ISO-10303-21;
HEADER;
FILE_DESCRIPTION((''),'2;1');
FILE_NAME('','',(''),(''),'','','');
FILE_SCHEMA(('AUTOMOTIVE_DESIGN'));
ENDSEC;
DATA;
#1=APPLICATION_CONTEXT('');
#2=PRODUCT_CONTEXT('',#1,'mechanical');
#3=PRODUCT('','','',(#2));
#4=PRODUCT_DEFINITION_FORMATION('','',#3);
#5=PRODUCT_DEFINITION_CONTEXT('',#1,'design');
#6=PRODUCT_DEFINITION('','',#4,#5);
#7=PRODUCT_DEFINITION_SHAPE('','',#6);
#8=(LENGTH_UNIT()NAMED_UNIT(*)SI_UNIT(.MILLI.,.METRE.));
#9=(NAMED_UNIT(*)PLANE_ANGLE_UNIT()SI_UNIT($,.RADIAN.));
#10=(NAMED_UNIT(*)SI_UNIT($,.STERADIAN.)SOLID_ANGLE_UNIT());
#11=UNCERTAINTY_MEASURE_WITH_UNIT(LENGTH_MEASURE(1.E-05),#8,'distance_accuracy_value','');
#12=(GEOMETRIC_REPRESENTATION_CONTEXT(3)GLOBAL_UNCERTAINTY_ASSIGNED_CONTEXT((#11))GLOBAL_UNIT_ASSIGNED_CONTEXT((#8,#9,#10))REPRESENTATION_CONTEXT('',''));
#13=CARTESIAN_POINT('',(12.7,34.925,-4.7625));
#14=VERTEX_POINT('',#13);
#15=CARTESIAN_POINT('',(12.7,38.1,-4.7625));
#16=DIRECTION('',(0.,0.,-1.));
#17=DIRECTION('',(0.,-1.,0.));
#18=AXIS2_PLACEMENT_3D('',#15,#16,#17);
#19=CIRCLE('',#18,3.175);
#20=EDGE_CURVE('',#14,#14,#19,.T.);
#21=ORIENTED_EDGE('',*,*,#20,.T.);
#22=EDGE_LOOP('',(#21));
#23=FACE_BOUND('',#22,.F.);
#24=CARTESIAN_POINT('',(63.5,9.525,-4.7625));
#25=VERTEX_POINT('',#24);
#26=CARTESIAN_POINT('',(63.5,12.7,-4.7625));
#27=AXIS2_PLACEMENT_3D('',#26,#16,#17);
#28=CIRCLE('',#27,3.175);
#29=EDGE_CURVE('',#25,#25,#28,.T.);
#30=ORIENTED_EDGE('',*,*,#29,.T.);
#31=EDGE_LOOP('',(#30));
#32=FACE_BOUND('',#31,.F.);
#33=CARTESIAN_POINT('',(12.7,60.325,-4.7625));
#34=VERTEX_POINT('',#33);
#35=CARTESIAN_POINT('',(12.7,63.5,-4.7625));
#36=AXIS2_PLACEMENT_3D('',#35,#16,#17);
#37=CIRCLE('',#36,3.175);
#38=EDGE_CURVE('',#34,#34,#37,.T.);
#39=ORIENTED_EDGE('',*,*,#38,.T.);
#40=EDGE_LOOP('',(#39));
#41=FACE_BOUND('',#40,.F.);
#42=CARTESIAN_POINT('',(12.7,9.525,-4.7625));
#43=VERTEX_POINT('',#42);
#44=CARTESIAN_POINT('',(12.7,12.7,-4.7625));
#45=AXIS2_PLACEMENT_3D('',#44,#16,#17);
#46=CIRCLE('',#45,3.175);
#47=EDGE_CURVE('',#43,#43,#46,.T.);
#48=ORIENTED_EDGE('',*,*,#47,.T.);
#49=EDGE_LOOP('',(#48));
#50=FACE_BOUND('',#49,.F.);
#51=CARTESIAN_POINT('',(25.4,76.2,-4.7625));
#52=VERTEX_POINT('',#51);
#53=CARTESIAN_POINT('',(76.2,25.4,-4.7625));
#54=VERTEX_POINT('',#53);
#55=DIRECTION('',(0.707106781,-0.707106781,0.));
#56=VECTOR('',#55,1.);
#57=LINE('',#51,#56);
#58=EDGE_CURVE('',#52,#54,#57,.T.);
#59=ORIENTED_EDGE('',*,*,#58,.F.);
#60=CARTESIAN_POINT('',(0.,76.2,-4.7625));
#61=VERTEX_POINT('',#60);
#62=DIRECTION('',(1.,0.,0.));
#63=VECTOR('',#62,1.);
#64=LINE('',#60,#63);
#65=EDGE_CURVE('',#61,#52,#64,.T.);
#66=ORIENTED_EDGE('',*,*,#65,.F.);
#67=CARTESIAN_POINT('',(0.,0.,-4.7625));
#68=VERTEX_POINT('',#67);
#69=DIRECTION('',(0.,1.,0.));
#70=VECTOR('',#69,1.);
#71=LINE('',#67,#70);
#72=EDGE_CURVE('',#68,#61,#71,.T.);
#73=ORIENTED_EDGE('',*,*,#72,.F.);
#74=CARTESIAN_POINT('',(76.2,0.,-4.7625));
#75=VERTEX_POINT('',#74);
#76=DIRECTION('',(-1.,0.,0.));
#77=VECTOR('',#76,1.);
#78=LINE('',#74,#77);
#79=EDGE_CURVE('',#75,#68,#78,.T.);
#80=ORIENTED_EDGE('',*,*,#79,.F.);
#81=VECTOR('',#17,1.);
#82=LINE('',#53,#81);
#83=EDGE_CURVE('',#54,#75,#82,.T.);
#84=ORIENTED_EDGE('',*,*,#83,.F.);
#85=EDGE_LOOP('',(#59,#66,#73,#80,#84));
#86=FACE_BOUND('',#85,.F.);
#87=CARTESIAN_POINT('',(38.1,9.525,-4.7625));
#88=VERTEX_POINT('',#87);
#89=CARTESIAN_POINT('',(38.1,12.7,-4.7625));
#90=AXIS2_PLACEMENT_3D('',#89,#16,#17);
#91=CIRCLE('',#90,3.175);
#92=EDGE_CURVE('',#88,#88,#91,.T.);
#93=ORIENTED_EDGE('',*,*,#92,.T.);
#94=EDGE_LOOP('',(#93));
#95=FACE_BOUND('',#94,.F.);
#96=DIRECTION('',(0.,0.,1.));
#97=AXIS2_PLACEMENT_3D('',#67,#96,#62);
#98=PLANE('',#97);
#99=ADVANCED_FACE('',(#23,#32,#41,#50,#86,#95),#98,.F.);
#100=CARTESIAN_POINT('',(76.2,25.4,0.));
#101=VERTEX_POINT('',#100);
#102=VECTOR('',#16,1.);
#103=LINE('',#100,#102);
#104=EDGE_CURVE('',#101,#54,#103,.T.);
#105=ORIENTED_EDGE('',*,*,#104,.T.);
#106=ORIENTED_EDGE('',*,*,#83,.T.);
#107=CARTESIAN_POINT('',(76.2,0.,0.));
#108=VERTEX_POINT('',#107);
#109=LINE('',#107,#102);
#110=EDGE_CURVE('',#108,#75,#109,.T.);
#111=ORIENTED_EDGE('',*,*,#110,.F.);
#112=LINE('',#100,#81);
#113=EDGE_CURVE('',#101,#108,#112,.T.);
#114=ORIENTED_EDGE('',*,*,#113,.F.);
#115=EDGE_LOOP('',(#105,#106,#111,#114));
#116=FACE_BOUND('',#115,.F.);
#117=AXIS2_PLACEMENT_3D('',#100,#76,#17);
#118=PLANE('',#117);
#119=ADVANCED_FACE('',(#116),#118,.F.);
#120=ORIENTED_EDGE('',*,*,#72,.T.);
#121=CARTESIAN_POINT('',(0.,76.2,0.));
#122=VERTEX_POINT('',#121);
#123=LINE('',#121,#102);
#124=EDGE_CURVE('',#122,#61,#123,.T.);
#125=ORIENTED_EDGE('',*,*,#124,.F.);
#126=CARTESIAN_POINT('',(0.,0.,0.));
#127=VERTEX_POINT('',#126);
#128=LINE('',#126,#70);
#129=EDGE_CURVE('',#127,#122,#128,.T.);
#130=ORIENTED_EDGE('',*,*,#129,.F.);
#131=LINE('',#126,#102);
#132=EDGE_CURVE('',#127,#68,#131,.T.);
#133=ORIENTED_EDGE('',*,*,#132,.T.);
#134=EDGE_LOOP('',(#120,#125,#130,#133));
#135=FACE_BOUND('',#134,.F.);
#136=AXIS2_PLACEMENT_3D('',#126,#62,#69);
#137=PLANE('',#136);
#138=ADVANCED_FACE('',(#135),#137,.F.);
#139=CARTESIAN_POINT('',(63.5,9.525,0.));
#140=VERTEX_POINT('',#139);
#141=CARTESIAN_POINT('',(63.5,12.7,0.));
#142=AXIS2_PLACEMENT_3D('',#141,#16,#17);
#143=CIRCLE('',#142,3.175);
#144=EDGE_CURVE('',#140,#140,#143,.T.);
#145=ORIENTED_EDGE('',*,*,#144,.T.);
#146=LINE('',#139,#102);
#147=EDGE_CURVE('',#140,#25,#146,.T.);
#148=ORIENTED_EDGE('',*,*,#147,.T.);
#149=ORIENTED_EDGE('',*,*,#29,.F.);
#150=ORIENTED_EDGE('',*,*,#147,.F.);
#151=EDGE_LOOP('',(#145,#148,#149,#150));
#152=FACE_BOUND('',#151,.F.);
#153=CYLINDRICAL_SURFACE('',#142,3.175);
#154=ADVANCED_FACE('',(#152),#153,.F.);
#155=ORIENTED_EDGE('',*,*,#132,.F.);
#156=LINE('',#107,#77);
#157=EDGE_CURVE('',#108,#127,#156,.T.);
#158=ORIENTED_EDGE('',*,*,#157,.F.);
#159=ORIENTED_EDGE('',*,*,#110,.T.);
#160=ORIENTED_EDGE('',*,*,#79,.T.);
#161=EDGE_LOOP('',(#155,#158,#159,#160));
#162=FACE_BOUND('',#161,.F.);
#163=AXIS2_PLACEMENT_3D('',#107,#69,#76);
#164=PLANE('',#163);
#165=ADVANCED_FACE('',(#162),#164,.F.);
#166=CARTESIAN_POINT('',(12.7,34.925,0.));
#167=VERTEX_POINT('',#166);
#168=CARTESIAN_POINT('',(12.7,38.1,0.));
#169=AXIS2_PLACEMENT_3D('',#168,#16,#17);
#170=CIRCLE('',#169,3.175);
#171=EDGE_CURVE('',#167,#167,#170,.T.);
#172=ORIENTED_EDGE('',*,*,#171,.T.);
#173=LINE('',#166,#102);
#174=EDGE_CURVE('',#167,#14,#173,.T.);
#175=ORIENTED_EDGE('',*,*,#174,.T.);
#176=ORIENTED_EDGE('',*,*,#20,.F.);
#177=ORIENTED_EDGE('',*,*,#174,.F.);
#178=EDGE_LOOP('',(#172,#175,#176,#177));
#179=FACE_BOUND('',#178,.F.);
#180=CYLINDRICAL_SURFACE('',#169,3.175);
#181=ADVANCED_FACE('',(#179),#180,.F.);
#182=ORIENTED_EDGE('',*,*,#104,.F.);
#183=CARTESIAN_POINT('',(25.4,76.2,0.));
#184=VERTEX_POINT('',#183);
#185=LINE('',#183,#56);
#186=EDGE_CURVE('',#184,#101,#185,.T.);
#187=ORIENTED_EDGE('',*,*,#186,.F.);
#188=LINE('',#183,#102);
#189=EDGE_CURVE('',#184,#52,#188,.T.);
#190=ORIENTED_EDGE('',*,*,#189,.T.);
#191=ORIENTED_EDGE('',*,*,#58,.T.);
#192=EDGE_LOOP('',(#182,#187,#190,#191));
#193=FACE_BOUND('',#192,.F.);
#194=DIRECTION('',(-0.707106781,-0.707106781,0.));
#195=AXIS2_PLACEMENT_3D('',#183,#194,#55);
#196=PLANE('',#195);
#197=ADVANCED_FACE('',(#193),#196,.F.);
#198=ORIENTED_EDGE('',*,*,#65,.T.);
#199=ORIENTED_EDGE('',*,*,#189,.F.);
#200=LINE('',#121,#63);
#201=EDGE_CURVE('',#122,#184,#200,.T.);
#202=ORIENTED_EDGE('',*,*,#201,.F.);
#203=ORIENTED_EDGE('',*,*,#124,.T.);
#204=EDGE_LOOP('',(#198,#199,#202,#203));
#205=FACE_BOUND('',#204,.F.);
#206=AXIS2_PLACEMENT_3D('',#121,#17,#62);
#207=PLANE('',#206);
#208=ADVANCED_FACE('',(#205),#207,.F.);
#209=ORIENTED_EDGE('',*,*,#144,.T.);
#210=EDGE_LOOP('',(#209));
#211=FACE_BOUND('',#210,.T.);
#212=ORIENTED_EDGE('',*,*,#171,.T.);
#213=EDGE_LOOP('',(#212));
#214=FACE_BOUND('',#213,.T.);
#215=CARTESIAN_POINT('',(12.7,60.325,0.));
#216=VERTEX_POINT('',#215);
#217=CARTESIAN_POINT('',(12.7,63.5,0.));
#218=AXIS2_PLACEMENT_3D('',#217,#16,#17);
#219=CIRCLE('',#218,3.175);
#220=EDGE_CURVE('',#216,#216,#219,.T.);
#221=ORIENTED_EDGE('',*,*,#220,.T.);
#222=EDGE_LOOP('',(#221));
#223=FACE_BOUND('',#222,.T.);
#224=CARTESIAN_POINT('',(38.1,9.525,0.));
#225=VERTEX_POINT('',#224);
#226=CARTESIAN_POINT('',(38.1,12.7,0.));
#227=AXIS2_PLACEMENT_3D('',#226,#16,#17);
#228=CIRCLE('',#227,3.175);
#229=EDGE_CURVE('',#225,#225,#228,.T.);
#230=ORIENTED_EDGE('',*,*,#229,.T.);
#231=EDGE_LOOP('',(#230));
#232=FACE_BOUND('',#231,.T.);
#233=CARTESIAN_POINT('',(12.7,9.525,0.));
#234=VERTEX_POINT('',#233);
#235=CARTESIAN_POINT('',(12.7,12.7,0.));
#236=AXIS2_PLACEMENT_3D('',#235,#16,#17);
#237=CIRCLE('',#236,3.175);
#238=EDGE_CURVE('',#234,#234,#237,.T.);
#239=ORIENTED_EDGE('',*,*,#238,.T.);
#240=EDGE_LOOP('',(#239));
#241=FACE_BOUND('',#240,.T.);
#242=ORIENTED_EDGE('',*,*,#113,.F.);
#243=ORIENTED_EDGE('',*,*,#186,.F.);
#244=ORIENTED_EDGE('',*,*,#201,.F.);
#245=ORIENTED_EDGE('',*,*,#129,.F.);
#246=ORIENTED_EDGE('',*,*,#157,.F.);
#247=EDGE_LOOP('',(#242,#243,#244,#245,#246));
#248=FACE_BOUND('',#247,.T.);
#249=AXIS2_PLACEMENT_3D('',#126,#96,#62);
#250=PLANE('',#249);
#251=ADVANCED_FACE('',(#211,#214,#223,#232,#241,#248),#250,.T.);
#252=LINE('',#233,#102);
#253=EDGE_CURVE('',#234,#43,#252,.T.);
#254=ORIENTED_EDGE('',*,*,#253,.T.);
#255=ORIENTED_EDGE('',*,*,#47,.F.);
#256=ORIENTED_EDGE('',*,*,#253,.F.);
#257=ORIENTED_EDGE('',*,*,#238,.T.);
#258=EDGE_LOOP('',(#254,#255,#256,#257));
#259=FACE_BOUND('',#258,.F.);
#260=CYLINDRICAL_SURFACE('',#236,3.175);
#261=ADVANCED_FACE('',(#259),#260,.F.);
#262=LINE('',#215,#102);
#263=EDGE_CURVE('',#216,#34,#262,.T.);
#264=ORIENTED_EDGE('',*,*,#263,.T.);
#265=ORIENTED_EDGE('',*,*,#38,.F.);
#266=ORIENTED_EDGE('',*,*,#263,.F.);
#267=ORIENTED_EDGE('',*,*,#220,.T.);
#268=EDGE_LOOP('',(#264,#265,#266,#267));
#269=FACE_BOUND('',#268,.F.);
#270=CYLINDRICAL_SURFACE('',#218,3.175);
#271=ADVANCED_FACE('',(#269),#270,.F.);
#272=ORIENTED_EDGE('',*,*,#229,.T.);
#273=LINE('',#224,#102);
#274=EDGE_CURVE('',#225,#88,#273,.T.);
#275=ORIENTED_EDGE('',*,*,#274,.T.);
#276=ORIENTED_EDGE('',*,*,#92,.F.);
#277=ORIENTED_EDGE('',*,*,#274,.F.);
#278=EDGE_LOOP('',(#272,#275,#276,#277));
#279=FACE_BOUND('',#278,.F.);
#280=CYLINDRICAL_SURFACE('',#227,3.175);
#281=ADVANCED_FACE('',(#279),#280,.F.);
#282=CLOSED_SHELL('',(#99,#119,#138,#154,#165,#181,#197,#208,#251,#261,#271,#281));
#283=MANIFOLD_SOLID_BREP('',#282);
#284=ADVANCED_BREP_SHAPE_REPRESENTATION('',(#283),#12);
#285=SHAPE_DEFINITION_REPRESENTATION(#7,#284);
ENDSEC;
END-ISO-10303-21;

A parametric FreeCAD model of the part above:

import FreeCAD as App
import Part
import Sketcher
from FreeCAD import Vector
Q = App.Units.Quantity


def add_polygon(sketch, points):
    """Adds a closed chain of lines whose ends are joined by coincident constraints."""
    first, n = sketch.GeometryCount, len(points)
    for a, b in zip(points, points[1:] + points[:1]):
        sketch.addGeometry(Part.LineSegment(App.Vector(*a, 0), App.Vector(*b, 0)), False)
    for i in range(n):
        sketch.addConstraint(Sketcher.Constraint("Coincident", first + i, 2, first + (i + 1) % n, 1))

doc = App.newDocument("Part")
body = doc.addObject("PartDesign::Body", "Body")

# Sketch on XY plane
sketch1 = doc.addObject("Sketcher::SketchObject", "Sketch")
body.addObject(sketch1)
sketch1.AttachmentSupport = (doc.XY_Plane, [""])
sketch1.MapMode = "FlatFace"
add_polygon(sketch1, [(0, 0), (76, 0), (76, 25), (25, 76), (0, 76)])  # lines 0-4
sketch1.addConstraint([
    Sketcher.Constraint("Horizontal", 0),
    Sketcher.Constraint("Vertical", 1),
    Sketcher.Constraint("Horizontal", 3),
    Sketcher.Constraint("Vertical", 4),
    Sketcher.Constraint("Coincident", 4, 2, -1, 1),
    Sketcher.Constraint("Equal", 3, 1),
    Sketcher.Constraint("Equal", 0, 4),
    Sketcher.Constraint("DistanceX", 0, 1, 0, 2, Q("3 in")),
    Sketcher.Constraint("DistanceX", 3, 2, 3, 1, Q("1 in")),
])
pad1 = doc.addObject("PartDesign::Pad", "Pad")
body.addObject(pad1)
pad1.Profile = sketch1
pad1.Length = Q("0.1875 in")
pad1.Reversed = True

# Sketch on XY plane
sketch2 = doc.addObject("Sketcher::SketchObject", "Sketch001")
body.addObject(sketch2)
sketch2.AttachmentSupport = (doc.XY_Plane, [""])
sketch2.MapMode = "FlatFace"
sketch2.addGeometry([
    Part.Circle(Vector(12.7, 63.5, 0), Vector(0, 0, 1), 3.2),  # 0
    Part.Circle(Vector(12.7, 38.1, 0), Vector(0, 0, 1), 3.2),  # 1
    Part.Circle(Vector(12.7, 12.7, 0), Vector(0, 0, 1), 3.2),  # 2
    Part.Circle(Vector(38.1, 12.7, 0), Vector(0, 0, 1), 3.2),  # 3
    Part.Circle(Vector(63.5, 12.7, 0), Vector(0, 0, 1), 3.2),  # 4
], False)
sketch2.addConstraint([
    Sketcher.Constraint("Equal", 0, 1),
    Sketcher.Constraint("Equal", 1, 2),
    Sketcher.Constraint("Equal", 2, 3),
    Sketcher.Constraint("Equal", 3, 4),
    Sketcher.Constraint("Horizontal", 2, 3, 3, 3),
    Sketcher.Constraint("Horizontal", 3, 3, 4, 3),
    Sketcher.Constraint("Vertical", 0, 3, 1, 3),
    Sketcher.Constraint("Vertical", 1, 3, 2, 3),
    Sketcher.Constraint("Diameter", 0, Q("0.25 in")),
    Sketcher.Constraint("DistanceY", 1, 3, 0, 3, Q("1 in")),
    Sketcher.Constraint("DistanceY", 2, 3, 1, 3, Q("1 in")),
    Sketcher.Constraint("DistanceX", 2, 3, 3, 3, Q("1 in")),
    Sketcher.Constraint("DistanceX", 3, 3, 4, 3, Q("1 in")),
    Sketcher.Constraint("DistanceX", -1, 1, 0, 3, Q("0.5 in")),
    Sketcher.Constraint("DistanceY", -1, 1, 0, 3, Q("2.5 in")),
])
doc.recompute()
hole = doc.addObject("PartDesign::Hole", "Hole")
body.addObject(hole)
hole.Profile = sketch2
hole.ThreadType = "None"
hole.Diameter = Q("0.25 in")
hole.DepthType = "Dimension"
hole.Depth = Q("1 in")
hole.DrillPoint = "Angled"
hole.DrillPointAngle = 118

doc.recompute()
